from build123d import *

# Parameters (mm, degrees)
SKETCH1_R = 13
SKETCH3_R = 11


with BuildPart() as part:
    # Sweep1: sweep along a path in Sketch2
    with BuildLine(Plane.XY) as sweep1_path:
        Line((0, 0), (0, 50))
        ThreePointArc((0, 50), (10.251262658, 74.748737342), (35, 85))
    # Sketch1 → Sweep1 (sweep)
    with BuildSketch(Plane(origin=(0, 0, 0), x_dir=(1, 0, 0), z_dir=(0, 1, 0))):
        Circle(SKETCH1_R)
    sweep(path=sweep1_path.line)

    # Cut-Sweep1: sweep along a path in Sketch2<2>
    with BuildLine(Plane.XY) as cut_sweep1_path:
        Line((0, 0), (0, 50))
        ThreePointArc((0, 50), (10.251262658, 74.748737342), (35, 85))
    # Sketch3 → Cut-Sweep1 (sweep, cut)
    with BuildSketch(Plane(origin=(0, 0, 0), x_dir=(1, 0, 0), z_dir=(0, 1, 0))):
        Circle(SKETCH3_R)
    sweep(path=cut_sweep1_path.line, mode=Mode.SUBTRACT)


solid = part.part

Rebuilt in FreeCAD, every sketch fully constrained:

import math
import FreeCAD as App
import Part
import Sketcher
from FreeCAD import Vector
Q = App.Units.Quantity

doc = App.newDocument("Part")
body = doc.addObject("PartDesign::Body", "Body")

sketch1 = body.newObject("Sketcher::SketchObject", "Sketch")
sketch1.AttachmentSupport = (doc.getObject("XZ_Plane"), [""])
sketch1.MapMode = "FlatFace"
sketch1.addGeometry(Part.Circle(Vector(0, 0, 0), Vector(0, 0, 1), 13), False)
sketch1.addConstraint(Sketcher.Constraint("Coincident", 0, 3, -1, 1))
sketch1.addConstraint(Sketcher.Constraint("Diameter", 0, Q("26 mm")))

sketch2 = body.newObject("Sketcher::SketchObject", "Sketch001")
sketch2.AttachmentSupport = (doc.getObject("XY_Plane"), [""])
sketch2.MapMode = "FlatFace"
sketch2.addGeometry(Part.LineSegment(Vector(0, 0, 0), Vector(0, 50, 0)), False)
sketch2.addGeometry(Part.ArcOfCircle(Part.Circle(Vector(35, 50, 0), Vector(0, 0, 1), 35), math.radians(90), math.radians(180)), False)
sketch2.addConstraint(Sketcher.Constraint("Tangent", 0, 2, 1, 2))
sketch2.addConstraint(Sketcher.Constraint("Vertical", 0))
sketch2.addConstraint(Sketcher.Constraint("Coincident", 0, 1, -1, 1))
sketch2.addConstraint(Sketcher.Constraint("Radius", 1, Q("35 mm")))
sketch2.addConstraint(Sketcher.Constraint("DistanceY", 0, 1, 0, 2, Q("50 mm")))
sketch2.addConstraint(Sketcher.Constraint("DistanceX", -1, 1, 1, 1, Q("35 mm")))
doc.recompute()

additivepipe = body.newObject("PartDesign::AdditivePipe", "AdditivePipe")
additivepipe.Profile = sketch1
additivepipe.Spine = (sketch2, ["Edge1", "Edge2"])

sketch3 = body.newObject("Sketcher::SketchObject", "Sketch002")
sketch3.AttachmentSupport = (doc.getObject("XZ_Plane"), [""])
sketch3.MapMode = "FlatFace"
sketch3.addGeometry(Part.Circle(Vector(0, 0, 0), Vector(0, 0, 1), 11), False)
sketch3.addConstraint(Sketcher.Constraint("Coincident", 0, 3, -1, 1))
sketch3.addConstraint(Sketcher.Constraint("Diameter", 0, Q("22 mm")))

sketch4 = body.newObject("Sketcher::SketchObject", "Sketch003")
sketch4.AttachmentSupport = (doc.getObject("XY_Plane"), [""])
sketch4.MapMode = "FlatFace"
sketch4.addGeometry(Part.LineSegment(Vector(0, 0, 0), Vector(0, 50, 0)), False)
sketch4.addGeometry(Part.ArcOfCircle(Part.Circle(Vector(35, 50, 0), Vector(0, 0, 1), 35), math.radians(90), math.radians(180)), False)
sketch4.addConstraint(Sketcher.Constraint("Tangent", 0, 2, 1, 2))
sketch4.addConstraint(Sketcher.Constraint("Vertical", 0))
sketch4.addConstraint(Sketcher.Constraint("Coincident", 0, 1, -1, 1))
sketch4.addConstraint(Sketcher.Constraint("Radius", 1, Q("35 mm")))
sketch4.addConstraint(Sketcher.Constraint("DistanceY", 0, 1, 0, 2, Q("50 mm")))
sketch4.addConstraint(Sketcher.Constraint("DistanceX", -1, 1, 1, 1, Q("35 mm")))
doc.recompute()

subtractivepipe = body.newObject("PartDesign::SubtractivePipe", "SubtractivePipe")
subtractivepipe.Profile = sketch3
subtractivepipe.Spine = (sketch4, ["Edge1", "Edge2"])

doc.recompute()
